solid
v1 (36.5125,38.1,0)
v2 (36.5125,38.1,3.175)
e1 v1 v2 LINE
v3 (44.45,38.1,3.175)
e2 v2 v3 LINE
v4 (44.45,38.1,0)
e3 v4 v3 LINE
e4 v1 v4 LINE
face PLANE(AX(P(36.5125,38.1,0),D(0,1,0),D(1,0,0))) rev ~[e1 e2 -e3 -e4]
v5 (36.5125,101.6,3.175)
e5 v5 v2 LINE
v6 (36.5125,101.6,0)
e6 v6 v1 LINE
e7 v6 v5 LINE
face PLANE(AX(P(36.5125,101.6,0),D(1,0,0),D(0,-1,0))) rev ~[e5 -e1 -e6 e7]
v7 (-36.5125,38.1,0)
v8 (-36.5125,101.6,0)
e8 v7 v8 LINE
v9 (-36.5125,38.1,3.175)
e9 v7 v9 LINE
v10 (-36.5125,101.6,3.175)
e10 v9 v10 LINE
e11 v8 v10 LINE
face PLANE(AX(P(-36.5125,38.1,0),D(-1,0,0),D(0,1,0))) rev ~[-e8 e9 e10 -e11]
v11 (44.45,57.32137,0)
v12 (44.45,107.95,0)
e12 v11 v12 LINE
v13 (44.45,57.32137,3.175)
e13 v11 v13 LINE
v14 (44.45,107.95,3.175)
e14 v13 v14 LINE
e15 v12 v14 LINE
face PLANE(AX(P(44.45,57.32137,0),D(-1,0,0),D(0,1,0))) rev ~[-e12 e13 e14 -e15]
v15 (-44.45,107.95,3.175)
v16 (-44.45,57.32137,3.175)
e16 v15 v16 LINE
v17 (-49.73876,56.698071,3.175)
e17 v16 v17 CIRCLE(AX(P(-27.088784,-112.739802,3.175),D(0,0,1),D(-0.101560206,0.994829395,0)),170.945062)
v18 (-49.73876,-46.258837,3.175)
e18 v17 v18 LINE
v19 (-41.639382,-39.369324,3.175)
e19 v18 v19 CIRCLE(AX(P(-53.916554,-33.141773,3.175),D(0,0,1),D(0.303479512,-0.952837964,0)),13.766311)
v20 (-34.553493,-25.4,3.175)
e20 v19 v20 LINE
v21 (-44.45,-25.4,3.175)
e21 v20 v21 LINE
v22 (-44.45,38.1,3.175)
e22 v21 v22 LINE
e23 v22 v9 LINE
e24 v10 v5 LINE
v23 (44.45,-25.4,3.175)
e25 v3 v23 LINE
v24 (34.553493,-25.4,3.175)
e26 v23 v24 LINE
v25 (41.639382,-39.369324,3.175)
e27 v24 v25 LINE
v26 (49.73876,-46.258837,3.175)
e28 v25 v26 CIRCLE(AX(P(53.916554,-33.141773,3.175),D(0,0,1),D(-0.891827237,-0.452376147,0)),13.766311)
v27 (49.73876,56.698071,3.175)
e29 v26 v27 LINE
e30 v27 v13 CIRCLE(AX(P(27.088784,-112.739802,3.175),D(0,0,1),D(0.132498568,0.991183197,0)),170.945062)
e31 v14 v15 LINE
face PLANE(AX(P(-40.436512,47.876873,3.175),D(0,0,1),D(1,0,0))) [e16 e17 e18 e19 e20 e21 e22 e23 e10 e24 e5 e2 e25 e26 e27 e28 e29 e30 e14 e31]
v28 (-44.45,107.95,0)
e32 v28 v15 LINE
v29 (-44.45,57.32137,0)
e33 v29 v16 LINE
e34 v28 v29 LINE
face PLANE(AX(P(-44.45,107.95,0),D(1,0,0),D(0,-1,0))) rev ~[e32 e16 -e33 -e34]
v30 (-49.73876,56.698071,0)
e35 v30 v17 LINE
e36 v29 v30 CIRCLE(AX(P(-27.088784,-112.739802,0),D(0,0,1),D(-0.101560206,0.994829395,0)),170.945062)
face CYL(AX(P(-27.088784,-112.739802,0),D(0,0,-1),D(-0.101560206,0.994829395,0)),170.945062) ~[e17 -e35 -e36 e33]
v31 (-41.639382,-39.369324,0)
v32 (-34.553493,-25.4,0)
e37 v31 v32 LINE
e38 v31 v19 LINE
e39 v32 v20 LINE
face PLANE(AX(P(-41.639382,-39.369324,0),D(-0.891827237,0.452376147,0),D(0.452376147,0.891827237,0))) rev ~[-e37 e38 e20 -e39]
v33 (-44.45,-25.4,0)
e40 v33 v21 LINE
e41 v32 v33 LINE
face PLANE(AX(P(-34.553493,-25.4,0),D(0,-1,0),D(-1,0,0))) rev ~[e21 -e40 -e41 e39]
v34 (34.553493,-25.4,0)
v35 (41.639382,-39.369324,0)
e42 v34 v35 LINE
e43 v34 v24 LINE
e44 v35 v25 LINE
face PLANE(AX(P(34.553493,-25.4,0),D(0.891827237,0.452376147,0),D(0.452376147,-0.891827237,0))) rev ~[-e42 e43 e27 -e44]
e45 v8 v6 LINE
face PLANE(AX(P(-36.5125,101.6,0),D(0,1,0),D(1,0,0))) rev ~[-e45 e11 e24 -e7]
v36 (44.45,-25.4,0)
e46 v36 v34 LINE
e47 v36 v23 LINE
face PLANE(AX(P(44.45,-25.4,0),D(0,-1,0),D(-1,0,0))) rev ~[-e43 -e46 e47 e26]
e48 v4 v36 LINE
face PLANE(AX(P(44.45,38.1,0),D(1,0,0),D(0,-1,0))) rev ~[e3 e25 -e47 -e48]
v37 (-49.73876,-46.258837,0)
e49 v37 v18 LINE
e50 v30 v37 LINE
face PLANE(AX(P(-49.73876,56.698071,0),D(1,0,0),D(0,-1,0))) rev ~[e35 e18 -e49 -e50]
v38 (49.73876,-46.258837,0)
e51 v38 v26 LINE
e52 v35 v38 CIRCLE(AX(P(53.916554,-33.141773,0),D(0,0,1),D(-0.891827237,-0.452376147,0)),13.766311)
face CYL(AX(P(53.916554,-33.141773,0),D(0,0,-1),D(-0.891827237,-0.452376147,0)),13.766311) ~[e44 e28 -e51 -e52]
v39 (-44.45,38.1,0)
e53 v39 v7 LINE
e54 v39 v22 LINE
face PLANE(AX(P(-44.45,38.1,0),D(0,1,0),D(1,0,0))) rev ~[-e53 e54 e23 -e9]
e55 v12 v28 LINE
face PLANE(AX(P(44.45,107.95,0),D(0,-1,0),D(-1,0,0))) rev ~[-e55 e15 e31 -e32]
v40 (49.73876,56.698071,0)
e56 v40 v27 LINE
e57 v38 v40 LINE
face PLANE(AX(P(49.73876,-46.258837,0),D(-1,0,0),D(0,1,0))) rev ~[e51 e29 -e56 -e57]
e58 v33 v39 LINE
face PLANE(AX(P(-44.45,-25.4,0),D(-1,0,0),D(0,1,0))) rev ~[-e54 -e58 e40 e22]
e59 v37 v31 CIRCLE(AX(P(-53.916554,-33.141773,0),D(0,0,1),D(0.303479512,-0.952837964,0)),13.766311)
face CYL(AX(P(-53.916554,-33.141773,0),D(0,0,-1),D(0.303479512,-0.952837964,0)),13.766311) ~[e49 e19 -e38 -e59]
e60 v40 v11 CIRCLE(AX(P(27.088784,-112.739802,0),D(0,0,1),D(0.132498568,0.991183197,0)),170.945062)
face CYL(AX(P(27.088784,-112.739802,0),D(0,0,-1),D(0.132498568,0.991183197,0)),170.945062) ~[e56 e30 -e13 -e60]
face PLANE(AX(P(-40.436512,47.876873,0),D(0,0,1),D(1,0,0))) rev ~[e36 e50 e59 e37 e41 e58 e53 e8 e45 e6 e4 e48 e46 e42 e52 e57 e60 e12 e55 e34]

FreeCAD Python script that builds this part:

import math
import FreeCAD as App
import Part
import Sketcher
from FreeCAD import Vector
Q = App.Units.Quantity

doc = App.newDocument("Part")
body = doc.addObject("PartDesign::Body", "Body")

# Sketch on XY plane
sketch1 = body.newObject("Sketcher::SketchObject", "Sketch")
sketch1.AttachmentSupport = (doc.getObject("XY_Plane"), [""])
sketch1.MapMode = "FlatFace"
sketch1.addGeometry([
    Part.LineSegment(Vector(-37, 38, 0), Vector(-37, 102, 0)),  # 0
    Part.LineSegment(Vector(-37, 102, 0), Vector(37, 102, 0)),  # 1
    Part.LineSegment(Vector(37, 102, 0), Vector(37, 38, 0)),  # 2
    Part.LineSegment(Vector(37, 38, 0), Vector(44, 38, 0)),  # 3
    Part.LineSegment(Vector(44, 38, 0), Vector(44, -25, 0)),  # 4
    Part.LineSegment(Vector(44, -25, 0), Vector(35, -25, 0)),  # 5
    Part.LineSegment(Vector(35, -25, 0), Vector(42, -39, 0)),  # 6
    Part.ArcOfCircle(Part.Circle(Vector(54, -33, 0), Vector(0, 0, 1), 14), math.radians(-153), math.radians(-108)),  # 7
    Part.LineSegment(Vector(50, -46, 0), Vector(50, 57, 0)),  # 8
    Part.ArcOfCircle(Part.Circle(Vector(27, -113, 0), Vector(0, 0, 1), 171), math.radians(82.39), math.radians(84.17)),  # 9
    Part.LineSegment(Vector(44, 57, 0), Vector(44, 108, 0)),  # 10
    Part.LineSegment(Vector(44, 108, 0), Vector(-44, 108, 0)),  # 11
    Part.LineSegment(Vector(-44, 108, 0), Vector(-44, 57, 0)),  # 12
    Part.ArcOfCircle(Part.Circle(Vector(-27, -113, 0), Vector(0, 0, 1), 171), math.radians(95.83), math.radians(97.61)),  # 13
    Part.LineSegment(Vector(-50, 57, 0), Vector(-50, -46, 0)),  # 14
    Part.ArcOfCircle(Part.Circle(Vector(-54, -33, 0), Vector(0, 0, 1), 14), math.radians(-72), math.radians(-27)),  # 15
    Part.LineSegment(Vector(-42, -39, 0), Vector(-35, -25, 0)),  # 16
    Part.LineSegment(Vector(-35, -25, 0), Vector(-44, -25, 0)),  # 17
    Part.LineSegment(Vector(-44, -25, 0), Vector(-44, 38, 0)),  # 18
    Part.LineSegment(Vector(-44, 38, 0), Vector(-37, 38, 0)),  # 19
], False)
sketch1.addConstraint([
    Sketcher.Constraint("Coincident", 0, 2, 1, 1),
    Sketcher.Constraint("Coincident", 1, 2, 2, 1),
    Sketcher.Constraint("Coincident", 2, 2, 3, 1),
    Sketcher.Constraint("Coincident", 3, 2, 4, 1),
    Sketcher.Constraint("Coincident", 4, 2, 5, 1),
    Sketcher.Constraint("Coincident", 5, 2, 6, 1),
    Sketcher.Constraint("Tangent", 6, 2, 7, 1),
    Sketcher.Constraint("Coincident", 7, 2, 8, 1),
    Sketcher.Constraint("Coincident", 8, 2, 9, 1),
    Sketcher.Constraint("Coincident", 9, 2, 10, 1),
    Sketcher.Constraint("Coincident", 10, 2, 11, 1),
    Sketcher.Constraint("Coincident", 11, 2, 12, 1),
    Sketcher.Constraint("Coincident", 12, 2, 13, 1),
    Sketcher.Constraint("Coincident", 13, 2, 14, 1),
    Sketcher.Constraint("Coincident", 14, 2, 15, 1),
    Sketcher.Constraint("Tangent", 15, 2, 16, 1),
    Sketcher.Constraint("Coincident", 16, 2, 17, 1),
    Sketcher.Constraint("Coincident", 17, 2, 18, 1),
    Sketcher.Constraint("Coincident", 18, 2, 19, 1),
    Sketcher.Constraint("Coincident", 19, 2, 0, 1),
    Sketcher.Constraint("Vertical", 0),
    Sketcher.Constraint("Horizontal", 1),
    Sketcher.Constraint("Vertical", 2),
    Sketcher.Constraint("Horizontal", 3),
    Sketcher.Constraint("Vertical", 4),
    Sketcher.Constraint("Horizontal", 5),
    Sketcher.Constraint("Vertical", 8),
    Sketcher.Constraint("Vertical", 10),
    Sketcher.Constraint("Horizontal", 11),
    Sketcher.Constraint("Vertical", 12),
    Sketcher.Constraint("Vertical", 14),
    Sketcher.Constraint("Horizontal", 17),
    Sketcher.Constraint("Vertical", 18),
    Sketcher.Constraint("Horizontal", 19),
    Sketcher.Constraint("Equal", 9, 13),
    Sketcher.Constraint("Equal", 7, 15),
    Sketcher.Constraint("Symmetric", 9, 3, 13, 3, -2),
    Sketcher.Constraint("Symmetric", 7, 3, 15, 3, -2),
    Sketcher.Constraint("Symmetric", 5, 2, 16, 2, -2),
    Sketcher.Constraint("Symmetric", 3, 2, 18, 2, -2),
    Sketcher.Constraint("Horizontal", 9, 2, 12, 2),
    Sketcher.Constraint("Horizontal", 8, 2, 13, 2),
    Sketcher.Constraint("Vertical", 4, 2, 9, 2),
    Sketcher.Constraint("Equal", 3, 19),
    Sketcher.Constraint("Equal", 2, 4),
    Sketcher.Constraint("DistanceX", 11, 2, 11, 1, Q("3.5 in")),
    Sketcher.Constraint("DistanceY", 0, 1, 0, 2, Q("2.5 in")),
    Sketcher.Constraint("DistanceY", -1, 1, 0, 2, Q("4 in")),
    Sketcher.Constraint("DistanceX", 1, 1, 1, 2, Q("2.875 in")),
    Sketcher.Constraint("DistanceY", -1, 1, 10, 2, Q("4.25 in")),
    Sketcher.Constraint("Radius", 7, 13.766311),
    Sketcher.Constraint("Radius", 9, 170.945062),
    Sketcher.Constraint("DistanceY", 8, 1, 8, 2, 102.956908),
    Sketcher.Constraint("DistanceY", 10, 1, 10, 2, 50.62863),
    Sketcher.Constraint("DistanceY", 8, 2, 9, 2, 0.6233),
    Sketcher.Constraint("Distance", 6, 15.663711),
    Sketcher.Constraint("DistanceX", 5, 2, 5, 1, 9.896507),
    Sketcher.Constraint("DistanceX", -1, 1, 7, 2, 49.73876),
])
pad1 = body.newObject("PartDesign::Pad", "Pad")
pad1.Profile = sketch1
pad1.Length = Q("0.125 in")

doc.recompute()
